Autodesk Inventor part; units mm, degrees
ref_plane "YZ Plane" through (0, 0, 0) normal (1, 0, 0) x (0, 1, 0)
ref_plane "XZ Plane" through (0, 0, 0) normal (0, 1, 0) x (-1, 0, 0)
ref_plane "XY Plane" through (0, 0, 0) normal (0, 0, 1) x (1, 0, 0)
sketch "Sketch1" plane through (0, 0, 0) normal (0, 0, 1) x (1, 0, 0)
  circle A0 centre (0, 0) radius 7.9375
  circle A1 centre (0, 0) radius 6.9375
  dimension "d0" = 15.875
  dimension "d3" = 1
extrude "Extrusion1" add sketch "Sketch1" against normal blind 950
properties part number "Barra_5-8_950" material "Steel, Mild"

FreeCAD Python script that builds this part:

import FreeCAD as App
import Part
import Sketcher

V = App.Vector

doc = App.newDocument("Part")
body = doc.addObject("PartDesign::Body", "Body")

# Sketch on XY plane
sketch1 = body.newObject("Sketcher::SketchObject", "Sketch")
sketch1.AttachmentSupport = (doc.getObject("XY_Plane"), [""])
sketch1.MapMode = "FlatFace"
sketch1.addGeometry(Part.Circle(V(0, 0, 0), V(0, 0, 1), 8), False)
sketch1.addGeometry(Part.Circle(V(0, 0, 0), V(0, 0, 1), 7), False)
sketch1.addConstraint(Sketcher.Constraint("Coincident", 0, 3, -1, 1))
sketch1.addConstraint(Sketcher.Constraint("Coincident", 1, 3, -1, 1))
sketch1.addConstraint(Sketcher.Constraint("Diameter", 0, 15.875))
sketch1.addConstraint(Sketcher.Constraint("Diameter", 1, 13.875))
pad1 = body.newObject("PartDesign::Pad", "Pad")
pad1.Profile = sketch1
pad1.Length = 950
pad1.Reversed = True

doc.recompute()
